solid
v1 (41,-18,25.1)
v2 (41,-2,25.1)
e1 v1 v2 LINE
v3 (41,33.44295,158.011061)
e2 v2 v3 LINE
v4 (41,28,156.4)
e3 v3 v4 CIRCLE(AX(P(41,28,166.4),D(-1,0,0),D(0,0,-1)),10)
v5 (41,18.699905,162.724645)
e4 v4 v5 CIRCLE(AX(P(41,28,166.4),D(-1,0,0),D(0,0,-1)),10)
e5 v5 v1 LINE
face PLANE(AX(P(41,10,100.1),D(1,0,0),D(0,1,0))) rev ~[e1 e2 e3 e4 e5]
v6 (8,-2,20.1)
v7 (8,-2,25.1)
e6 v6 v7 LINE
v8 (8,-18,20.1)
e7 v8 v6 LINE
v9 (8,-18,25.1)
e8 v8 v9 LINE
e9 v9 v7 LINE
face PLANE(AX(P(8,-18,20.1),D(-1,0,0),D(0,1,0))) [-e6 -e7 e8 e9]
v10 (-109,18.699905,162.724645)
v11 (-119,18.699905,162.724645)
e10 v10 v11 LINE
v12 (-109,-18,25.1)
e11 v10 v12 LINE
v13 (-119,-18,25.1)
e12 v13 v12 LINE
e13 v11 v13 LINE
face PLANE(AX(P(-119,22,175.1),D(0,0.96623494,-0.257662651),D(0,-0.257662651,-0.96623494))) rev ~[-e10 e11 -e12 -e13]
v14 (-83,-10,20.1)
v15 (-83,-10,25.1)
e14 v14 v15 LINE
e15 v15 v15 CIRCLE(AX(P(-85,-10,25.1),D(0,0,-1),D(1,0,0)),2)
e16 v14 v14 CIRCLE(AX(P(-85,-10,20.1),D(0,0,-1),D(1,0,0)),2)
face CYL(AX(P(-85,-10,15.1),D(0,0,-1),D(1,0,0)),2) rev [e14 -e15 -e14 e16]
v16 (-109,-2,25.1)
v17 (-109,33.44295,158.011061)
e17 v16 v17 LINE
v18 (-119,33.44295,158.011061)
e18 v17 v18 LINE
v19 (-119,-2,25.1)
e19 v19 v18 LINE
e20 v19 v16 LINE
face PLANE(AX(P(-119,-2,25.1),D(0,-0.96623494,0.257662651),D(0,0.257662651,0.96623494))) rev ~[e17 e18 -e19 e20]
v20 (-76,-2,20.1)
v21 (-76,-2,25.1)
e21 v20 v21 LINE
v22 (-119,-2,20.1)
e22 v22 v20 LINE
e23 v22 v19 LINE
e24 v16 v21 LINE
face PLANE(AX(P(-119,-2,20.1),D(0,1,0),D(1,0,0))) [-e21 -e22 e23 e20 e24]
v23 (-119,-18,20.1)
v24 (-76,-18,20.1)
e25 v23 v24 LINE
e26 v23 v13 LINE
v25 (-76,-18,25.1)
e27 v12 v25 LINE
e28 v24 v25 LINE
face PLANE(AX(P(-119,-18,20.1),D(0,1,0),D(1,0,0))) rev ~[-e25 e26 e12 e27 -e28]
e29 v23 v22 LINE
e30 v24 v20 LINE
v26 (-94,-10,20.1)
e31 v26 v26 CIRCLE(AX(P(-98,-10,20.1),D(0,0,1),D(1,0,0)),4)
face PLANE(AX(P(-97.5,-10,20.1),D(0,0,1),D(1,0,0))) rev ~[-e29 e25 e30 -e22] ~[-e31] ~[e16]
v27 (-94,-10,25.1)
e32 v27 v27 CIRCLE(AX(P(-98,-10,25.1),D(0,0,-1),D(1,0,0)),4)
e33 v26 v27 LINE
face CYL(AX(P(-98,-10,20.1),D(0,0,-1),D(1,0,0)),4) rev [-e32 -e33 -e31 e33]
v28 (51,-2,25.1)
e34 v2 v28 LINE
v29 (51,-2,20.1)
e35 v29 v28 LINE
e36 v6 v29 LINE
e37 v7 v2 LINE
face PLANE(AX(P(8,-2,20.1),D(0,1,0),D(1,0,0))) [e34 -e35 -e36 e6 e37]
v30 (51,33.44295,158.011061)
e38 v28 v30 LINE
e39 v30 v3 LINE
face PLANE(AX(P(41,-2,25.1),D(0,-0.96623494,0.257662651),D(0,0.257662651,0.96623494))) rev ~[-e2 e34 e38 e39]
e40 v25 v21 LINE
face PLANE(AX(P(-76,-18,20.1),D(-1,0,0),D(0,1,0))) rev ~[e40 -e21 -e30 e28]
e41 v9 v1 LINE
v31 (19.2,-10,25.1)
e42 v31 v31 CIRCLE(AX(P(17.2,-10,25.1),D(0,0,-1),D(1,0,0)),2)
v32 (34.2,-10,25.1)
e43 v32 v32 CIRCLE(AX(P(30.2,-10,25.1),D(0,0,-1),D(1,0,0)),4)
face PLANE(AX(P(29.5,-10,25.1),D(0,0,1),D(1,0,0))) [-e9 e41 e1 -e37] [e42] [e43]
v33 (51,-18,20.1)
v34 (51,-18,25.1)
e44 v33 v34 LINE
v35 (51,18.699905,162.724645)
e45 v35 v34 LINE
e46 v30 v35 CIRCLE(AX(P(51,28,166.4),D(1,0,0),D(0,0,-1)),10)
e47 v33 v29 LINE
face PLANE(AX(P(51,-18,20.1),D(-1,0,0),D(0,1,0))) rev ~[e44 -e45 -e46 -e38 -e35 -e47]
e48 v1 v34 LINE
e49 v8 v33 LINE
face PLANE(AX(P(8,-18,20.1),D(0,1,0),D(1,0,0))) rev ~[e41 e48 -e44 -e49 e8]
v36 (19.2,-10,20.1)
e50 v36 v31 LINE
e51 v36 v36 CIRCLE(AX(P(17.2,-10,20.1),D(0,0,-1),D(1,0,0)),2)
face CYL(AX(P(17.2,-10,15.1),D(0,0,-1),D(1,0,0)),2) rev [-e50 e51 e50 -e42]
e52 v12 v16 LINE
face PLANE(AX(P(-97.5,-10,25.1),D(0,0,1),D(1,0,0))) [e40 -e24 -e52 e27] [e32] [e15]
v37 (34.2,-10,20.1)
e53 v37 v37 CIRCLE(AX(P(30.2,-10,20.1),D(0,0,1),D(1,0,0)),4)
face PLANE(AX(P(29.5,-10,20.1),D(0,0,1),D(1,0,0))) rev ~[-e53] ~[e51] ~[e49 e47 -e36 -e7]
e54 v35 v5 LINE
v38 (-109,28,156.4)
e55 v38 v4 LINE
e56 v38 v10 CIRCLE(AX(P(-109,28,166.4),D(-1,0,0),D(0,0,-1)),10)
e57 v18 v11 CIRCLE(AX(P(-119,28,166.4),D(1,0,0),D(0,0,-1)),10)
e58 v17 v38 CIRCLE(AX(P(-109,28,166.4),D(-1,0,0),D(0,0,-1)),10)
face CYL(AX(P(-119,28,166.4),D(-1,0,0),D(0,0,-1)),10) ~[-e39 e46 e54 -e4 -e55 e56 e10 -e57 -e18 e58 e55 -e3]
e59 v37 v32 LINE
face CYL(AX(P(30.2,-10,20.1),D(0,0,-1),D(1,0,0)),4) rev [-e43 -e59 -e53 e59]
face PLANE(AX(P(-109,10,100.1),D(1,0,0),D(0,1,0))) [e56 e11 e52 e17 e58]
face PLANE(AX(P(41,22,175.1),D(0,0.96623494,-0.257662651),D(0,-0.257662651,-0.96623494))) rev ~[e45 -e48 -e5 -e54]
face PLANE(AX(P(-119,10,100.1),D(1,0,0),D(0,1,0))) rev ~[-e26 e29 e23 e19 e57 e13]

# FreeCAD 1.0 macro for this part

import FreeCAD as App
import Part
import Sketcher


def edges_at(feature, points):
    """Names of the edges that pass closest to the given points."""
    edges = feature.Shape.Edges
    near = lambda p: min(range(len(edges)), key=lambda i: edges[i].distToShape(Part.Vertex(*p))[0])
    return sorted({f"Edge{near(p) + 1}" for p in points})


def add_polygon(sketch, points):
    """Adds a closed chain of lines whose ends are joined by coincident constraints."""
    first, n = sketch.GeometryCount, len(points)
    for a, b in zip(points, points[1:] + points[:1]):
        sketch.addGeometry(Part.LineSegment(App.Vector(*a, 0), App.Vector(*b, 0)), False)
    for i in range(n):
        sketch.addConstraint(Sketcher.Constraint("Coincident", first + i, 2, first + (i + 1) % n, 1))

doc = App.newDocument("Part")
body = doc.addObject("PartDesign::Body", "Body")

sketch1 = doc.addObject("Sketcher::SketchObject", "Sketch")
body.addObject(sketch1)
sketch1.AttachmentSupport = (doc.YZ_Plane, [""])
sketch1.MapMode = "FlatFace"
sketch1.AttachmentOffset = App.Placement(App.Vector(0, 0, -119), App.Rotation())
sketch1.addGeometry(Part.Circle(App.Vector(28, 146.3, 0), App.Vector(0, 0, 1), 10), False)
sketch1.addConstraint([
    Sketcher.Constraint("Diameter", 0, 20.0),
    Sketcher.Constraint("DistanceX", -1, 1, 0, 3, 28.0),
    Sketcher.Constraint("DistanceY", -1, 1, 0, 3, 146.3),
])
pad1 = doc.addObject("PartDesign::Pad", "Pad")
body.addObject(pad1)
pad1.Profile = sketch1
pad1.Length = 170
body2 = doc.addObject("PartDesign::Body", "Body001")

sketch2 = doc.addObject("Sketcher::SketchObject", "Sketch001")
body2.addObject(sketch2)
sketch2.AttachmentSupport = (doc.getObject("XY_Plane001"), [""])
sketch2.MapMode = "FlatFace"
add_polygon(sketch2, [(0, 0), (16, 0), (56, 150), (40, 150)])
sketch2.addConstraint([
    Sketcher.Constraint("Horizontal", 0),
    Sketcher.Constraint("Horizontal", 2),
    Sketcher.Constraint("Coincident", 3, 2, -1, 1),
    Sketcher.Constraint("Parallel", 1, 3),
    Sketcher.Constraint("DistanceX", 0, 1, 0, 2, 16.0),
    Sketcher.Constraint("DistanceX", -1, 1, 1, 2, 56.0),
    Sketcher.Constraint("DistanceY", -1, 1, 1, 2, 150.0),
])
pad2 = doc.addObject("PartDesign::Pad", "Pad001")
body2.addObject(pad2)
pad2.Profile = sketch2
pad2.Length = 10
doc.recompute()

fillet = doc.addObject("PartDesign::Fillet", "Fillet")
body2.addObject(fillet)
fillet.Base = (pad2, edges_at(pad2, [(56, 150, 5), (40, 150, 5)]))
fillet.Radius = 7.72
body3 = doc.addObject("PartDesign::Body", "Body002")
doc.recompute()

body2.Placement = App.Placement(App.Vector(0, 0, 0), App.Rotation(App.Vector(1, 0, 0), 90))
boolean = doc.addObject("PartDesign::Boolean", "Boolean")
body3.addObject(boolean)
boolean.Type = "Fuse"
boolean.addObjects([body2])
body4 = doc.addObject("PartDesign::Body", "Body003")
doc.recompute()

body3.Placement = App.Placement(App.Vector(-119, -18, 5), App.Rotation(App.Vector(0, 0, 1), 90))
boolean2 = doc.addObject("PartDesign::Boolean", "Boolean001")
body4.addObject(boolean2)
boolean2.Type = "Fuse"
boolean2.addObjects([body3])
body5 = doc.addObject("PartDesign::Body", "Body004")

sketch3 = doc.addObject("Sketcher::SketchObject", "Sketch002")
body5.addObject(sketch3)
sketch3.AttachmentSupport = (doc.getObject("XY_Plane004"), [""])
sketch3.MapMode = "FlatFace"
add_polygon(sketch3, [(0, 0), (16, 0), (56, 150), (40, 150)])
sketch3.addConstraint([
    Sketcher.Constraint("Horizontal", 0),
    Sketcher.Constraint("Horizontal", 2),
    Sketcher.Constraint("Coincident", 3, 2, -1, 1),
    Sketcher.Constraint("Parallel", 1, 3),
    Sketcher.Constraint("DistanceX", 0, 1, 0, 2, 16.0),
    Sketcher.Constraint("DistanceX", -1, 1, 1, 2, 56.0),
    Sketcher.Constraint("DistanceY", -1, 1, 1, 2, 150.0),
])
pad3 = doc.addObject("PartDesign::Pad", "Pad002")
body5.addObject(pad3)
pad3.Profile = sketch3
pad3.Length = 10
doc.recompute()

fillet2 = doc.addObject("PartDesign::Fillet", "Fillet001")
body5.addObject(fillet2)
fillet2.Base = (pad3, edges_at(pad3, [(56, 150, 5), (40, 150, 5)]))
fillet2.Radius = 7.72
body6 = doc.addObject("PartDesign::Body", "Body005")
doc.recompute()

body5.Placement = App.Placement(App.Vector(0, 0, 0), App.Rotation(App.Vector(1, 0, 0), 90))
boolean3 = doc.addObject("PartDesign::Boolean", "Boolean002")
body6.addObject(boolean3)
boolean3.Type = "Fuse"
boolean3.addObjects([body5])
body7 = doc.addObject("PartDesign::Body", "Body006")
doc.recompute()

body6.Placement = App.Placement(App.Vector(41, -18, 5), App.Rotation(App.Vector(0, 0, 1), 90))
boolean4 = doc.addObject("PartDesign::Boolean", "Boolean003")
body7.addObject(boolean4)
boolean4.Type = "Fuse"
boolean4.addObjects([body6])
doc.recompute()

boolean5 = doc.addObject("PartDesign::Boolean", "Boolean004")
body7.addObject(boolean5)
boolean5.Type = "Fuse"
boolean5.addObjects([body])
doc.recompute()

boolean6 = doc.addObject("PartDesign::Boolean", "Boolean005")
body7.addObject(boolean6)
boolean6.Type = "Fuse"
boolean6.addObjects([body4])
body8 = doc.addObject("PartDesign::Body", "Body007")

sketch4 = doc.addObject("Sketcher::SketchObject", "Sketch003")
body8.addObject(sketch4)
sketch4.AttachmentSupport = (doc.getObject("XY_Plane007"), [""])
sketch4.MapMode = "FlatFace"
sketch4.AttachmentOffset = App.Placement(App.Vector(0, 0, -5), App.Rotation())
sketch4.addGeometry(Part.Circle(App.Vector(17.2, -10, 0), App.Vector(0, 0, 1), 2), False)
sketch4.addConstraint([
    Sketcher.Constraint("Diameter", 0, 4.0),
    Sketcher.Constraint("DistanceY", 0, 3, -1, 1, 10.0),
    Sketcher.Constraint("DistanceX", -1, 1, 0, 3, 17.2),
])
pad4 = doc.addObject("PartDesign::Pad", "Pad003")
body8.addObject(pad4)
pad4.Profile = sketch4
pad4.Length = 42
body9 = doc.addObject("PartDesign::Body", "Body008")

sketch5 = doc.addObject("Sketcher::SketchObject", "Sketch004")
body9.addObject(sketch5)
sketch5.AttachmentSupport = (doc.getObject("XY_Plane008"), [""])
sketch5.MapMode = "FlatFace"
sketch5.addGeometry(Part.Circle(App.Vector(30.2, -10, 0), App.Vector(0, 0, 1), 4), False)
sketch5.addConstraint([
    Sketcher.Constraint("Diameter", 0, 8.0),
    Sketcher.Constraint("DistanceY", 0, 3, -1, 1, 10.0),
    Sketcher.Constraint("DistanceX", -1, 1, 0, 3, 30.2),
])
pad5 = doc.addObject("PartDesign::Pad", "Pad004")
body9.addObject(pad5)
pad5.Profile = sketch5
pad5.Length = 32
body10 = doc.addObject("PartDesign::Body", "Body009")

sketch6 = doc.addObject("Sketcher::SketchObject", "Sketch005")
body10.addObject(sketch6)
sketch6.AttachmentSupport = (doc.getObject("XY_Plane009"), [""])
sketch6.MapMode = "FlatFace"
add_polygon(sketch6, [(8, -2), (8, -18), (51, -18), (51, -2)])
sketch6.addConstraint([
    Sketcher.Constraint("Vertical", 0),
    Sketcher.Constraint("Horizontal", 1),
    Sketcher.Constraint("Vertical", 2),
    Sketcher.Constraint("Horizontal", 3),
    Sketcher.Constraint("DistanceX", 1, 1, 1, 2, 43.0),
    Sketcher.Constraint("DistanceY", 0, 2, 0, 1, 16.0),
    Sketcher.Constraint("DistanceX", -1, 1, 0, 2, 8.0),
    Sketcher.Constraint("DistanceY", 0, 2, -1, 1, 18.0),
])
pad6 = doc.addObject("PartDesign::Pad", "Pad005")
body10.addObject(pad6)
pad6.Profile = sketch6
pad6.Length = 5
doc.recompute()

boolean7 = doc.addObject("PartDesign::Boolean", "Boolean006")
body10.addObject(boolean7)
boolean7.Type = "Cut"
boolean7.addObjects([body9])
doc.recompute()

boolean8 = doc.addObject("PartDesign::Boolean", "Boolean007")
body10.addObject(boolean8)
boolean8.Type = "Cut"
boolean8.addObjects([body8])
body11 = doc.addObject("PartDesign::Body", "Body010")

sketch7 = doc.addObject("Sketcher::SketchObject", "Sketch006")
body11.addObject(sketch7)
sketch7.AttachmentSupport = (doc.getObject("XY_Plane010"), [""])
sketch7.MapMode = "FlatFace"
sketch7.AttachmentOffset = App.Placement(App.Vector(0, 0, -5), App.Rotation())
sketch7.addGeometry(Part.Circle(App.Vector(-85, -10, 0), App.Vector(0, 0, 1), 2), False)
sketch7.addConstraint([
    Sketcher.Constraint("Diameter", 0, 4.0),
    Sketcher.Constraint("DistanceX", 0, 3, -1, 1, 85.0),
    Sketcher.Constraint("DistanceY", 0, 3, -1, 1, 10.0),
])
pad7 = doc.addObject("PartDesign::Pad", "Pad006")
body11.addObject(pad7)
pad7.Profile = sketch7
pad7.Length = 42
body12 = doc.addObject("PartDesign::Body", "Body011")

sketch8 = doc.addObject("Sketcher::SketchObject", "Sketch007")
body12.addObject(sketch8)
sketch8.AttachmentSupport = (doc.getObject("XY_Plane011"), [""])
sketch8.MapMode = "FlatFace"
sketch8.addGeometry(Part.Circle(App.Vector(-98, -10, 0), App.Vector(0, 0, 1), 4), False)
sketch8.addConstraint([
    Sketcher.Constraint("Diameter", 0, 8.0),
    Sketcher.Constraint("DistanceX", 0, 3, -1, 1, 98.0),
    Sketcher.Constraint("DistanceY", 0, 3, -1, 1, 10.0),
])
pad8 = doc.addObject("PartDesign::Pad", "Pad007")
body12.addObject(pad8)
pad8.Profile = sketch8
pad8.Length = 32
body13 = doc.addObject("PartDesign::Body", "Body012")

sketch9 = doc.addObject("Sketcher::SketchObject", "Sketch008")
body13.addObject(sketch9)
sketch9.AttachmentSupport = (doc.getObject("XY_Plane012"), [""])
sketch9.MapMode = "FlatFace"
add_polygon(sketch9, [(-119, -2), (-119, -18), (-76, -18), (-76, -2)])
sketch9.addConstraint([
    Sketcher.Constraint("Vertical", 0),
    Sketcher.Constraint("Horizontal", 1),
    Sketcher.Constraint("Vertical", 2),
    Sketcher.Constraint("Horizontal", 3),
    Sketcher.Constraint("DistanceX", 1, 1, 1, 2, 43.0),
    Sketcher.Constraint("DistanceY", 0, 2, 0, 1, 16.0),
    Sketcher.Constraint("DistanceX", 0, 2, -1, 1, 119.0),
    Sketcher.Constraint("DistanceY", 0, 2, -1, 1, 18.0),
])
pad9 = doc.addObject("PartDesign::Pad", "Pad008")
body13.addObject(pad9)
pad9.Profile = sketch9
pad9.Length = 5
doc.recompute()

boolean9 = doc.addObject("PartDesign::Boolean", "Boolean008")
body13.addObject(boolean9)
boolean9.Type = "Cut"
boolean9.addObjects([body12])
doc.recompute()

boolean10 = doc.addObject("PartDesign::Boolean", "Boolean009")
body13.addObject(boolean10)
boolean10.Type = "Cut"
boolean10.addObjects([body11])
doc.recompute()

boolean11 = doc.addObject("PartDesign::Boolean", "Boolean010")
body13.addObject(boolean11)
boolean11.Type = "Fuse"
boolean11.addObjects([body7])
doc.recompute()

boolean12 = doc.addObject("PartDesign::Boolean", "Boolean011")
body13.addObject(boolean12)
boolean12.Type = "Fuse"
boolean12.addObjects([body10])
body14 = doc.addObject("PartDesign::Body", "Body013")
doc.recompute()

body13.Placement = App.Placement(App.Vector(0, 0, 20.1), App.Rotation(App.Vector(0, 0, 1), 0))
boolean13 = doc.addObject("PartDesign::Boolean", "Boolean012")
body14.addObject(boolean13)
boolean13.Type = "Fuse"
boolean13.addObjects([body13])

doc.recompute()
